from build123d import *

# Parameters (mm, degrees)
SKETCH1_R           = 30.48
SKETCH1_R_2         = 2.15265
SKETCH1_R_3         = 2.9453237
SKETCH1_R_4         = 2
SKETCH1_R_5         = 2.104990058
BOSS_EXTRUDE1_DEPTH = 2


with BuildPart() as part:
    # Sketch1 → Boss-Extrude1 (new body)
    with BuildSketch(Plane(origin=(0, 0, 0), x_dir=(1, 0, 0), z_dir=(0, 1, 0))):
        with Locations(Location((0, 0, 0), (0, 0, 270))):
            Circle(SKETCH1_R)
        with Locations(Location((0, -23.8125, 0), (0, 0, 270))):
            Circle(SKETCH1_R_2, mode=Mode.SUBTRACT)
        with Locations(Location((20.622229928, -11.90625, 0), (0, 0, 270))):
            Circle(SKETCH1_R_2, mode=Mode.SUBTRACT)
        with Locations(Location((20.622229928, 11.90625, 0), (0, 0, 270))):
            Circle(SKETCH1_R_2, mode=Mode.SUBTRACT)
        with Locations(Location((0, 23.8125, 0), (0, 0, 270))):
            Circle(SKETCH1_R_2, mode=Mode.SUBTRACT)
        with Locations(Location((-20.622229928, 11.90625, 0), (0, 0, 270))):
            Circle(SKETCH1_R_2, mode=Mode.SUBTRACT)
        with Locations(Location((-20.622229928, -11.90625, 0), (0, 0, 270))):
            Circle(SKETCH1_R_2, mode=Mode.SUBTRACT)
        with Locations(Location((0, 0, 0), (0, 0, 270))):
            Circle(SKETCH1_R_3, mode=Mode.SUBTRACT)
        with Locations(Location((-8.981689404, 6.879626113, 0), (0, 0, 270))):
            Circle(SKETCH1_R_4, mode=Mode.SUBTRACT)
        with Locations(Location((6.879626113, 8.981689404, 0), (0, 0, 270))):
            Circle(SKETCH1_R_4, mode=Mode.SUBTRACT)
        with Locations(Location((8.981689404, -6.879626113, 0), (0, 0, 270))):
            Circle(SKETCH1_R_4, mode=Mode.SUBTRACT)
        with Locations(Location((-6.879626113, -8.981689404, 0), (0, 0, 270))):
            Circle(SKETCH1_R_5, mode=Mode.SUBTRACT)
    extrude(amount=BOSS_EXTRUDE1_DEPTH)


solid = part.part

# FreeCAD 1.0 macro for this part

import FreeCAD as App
import Part
import Sketcher
from FreeCAD import Vector

doc = App.newDocument("Part")
body = doc.addObject("PartDesign::Body", "Body")

sketch1 = doc.addObject("Sketcher::SketchObject", "Sketch")
body.addObject(sketch1)
sketch1.AttachmentSupport = (doc.XZ_Plane, [""])
sketch1.MapMode = "FlatFace"
sketch1.addGeometry([
    Part.Circle(Vector(0, 0, 0), Vector(0, 0, 1), 30.48),
    Part.Circle(Vector(-20.62223, -11.90625, 0), Vector(0, 0, 1), 2.15265),
    Part.Circle(Vector(0, -23.8125, 0), Vector(0, 0, 1), 2.15265),
    Part.Circle(Vector(-8.981689, -6.879626, 0), Vector(0, 0, 1), 2),
    Part.Circle(Vector(-20.62223, 11.90625, 0), Vector(0, 0, 1), 2.15265),
    Part.Circle(Vector(-6.879626, 8.981689, 0), Vector(0, 0, 1), 2.10499),
    Part.Circle(Vector(0, 0, 0), Vector(0, 0, 1), 2.945324),
    Part.Circle(Vector(6.879626, -8.981689, 0), Vector(0, 0, 1), 2),
    Part.Circle(Vector(20.62223, -11.90625, 0), Vector(0, 0, 1), 2.15265),
    Part.Circle(Vector(8.981689, 6.879626, 0), Vector(0, 0, 1), 2),
    Part.Circle(Vector(0, 23.8125, 0), Vector(0, 0, 1), 2.15265),
    Part.Circle(Vector(20.62223, 11.90625, 0), Vector(0, 0, 1), 2.15265),
], False)
sketch1.addConstraint([
    Sketcher.Constraint("Coincident", 0, 3, -1, 1),
    Sketcher.Constraint("Coincident", 6, 3, -1, 1),
    Sketcher.Constraint("Equal", 1, 2),
    Sketcher.Constraint("Equal", 2, 4),
    Sketcher.Constraint("Equal", 3, 7),
    Sketcher.Constraint("Equal", 4, 8),
    Sketcher.Constraint("Equal", 7, 9),
    Sketcher.Constraint("Equal", 8, 10),
    Sketcher.Constraint("Equal", 10, 11),
    Sketcher.Constraint("Symmetric", 5, 3, 7, 3, -1, 1),
    Sketcher.Constraint("Symmetric", 4, 3, 8, 3, -1, 1),
    Sketcher.Constraint("Symmetric", 3, 3, 9, 3, -1, 1),
    Sketcher.Constraint("Symmetric", 2, 3, 10, 3, -1, 1),
    Sketcher.Constraint("Symmetric", 1, 3, 11, 3, -1, 1),
    Sketcher.Constraint("Symmetric", 1, 3, 8, 3, -2),
    Sketcher.Constraint("PointOnObject", 2, 3, -2),
    Sketcher.Constraint("Diameter", 3, 4.0),
    Sketcher.Constraint("Diameter", 0, 60.96),
    Sketcher.Constraint("Diameter", 1, 4.3053),
    Sketcher.Constraint("Diameter", 5, 4.20998),
    Sketcher.Constraint("Diameter", 6, 5.890647),
    Sketcher.Constraint("DistanceY", 2, 3, -1, 1, 23.8125),
    Sketcher.Constraint("DistanceY", 1, 3, 4, 3, 23.8125),
    Sketcher.Constraint("DistanceX", 1, 3, -1, 1, 20.62223),
    Sketcher.Constraint("DistanceX", 3, 3, -1, 1, 8.981689),
    Sketcher.Constraint("DistanceY", -1, 1, 5, 3, 8.981689),
    Sketcher.Constraint("DistanceY", 3, 3, -1, 1, 6.879626),
    Sketcher.Constraint("DistanceX", 5, 3, -1, 1, 6.879626),
])
pad1 = doc.addObject("PartDesign::Pad", "Pad")
body.addObject(pad1)
pad1.Profile = sketch1
pad1.Length = 2
pad1.Reversed = True

doc.recompute()
